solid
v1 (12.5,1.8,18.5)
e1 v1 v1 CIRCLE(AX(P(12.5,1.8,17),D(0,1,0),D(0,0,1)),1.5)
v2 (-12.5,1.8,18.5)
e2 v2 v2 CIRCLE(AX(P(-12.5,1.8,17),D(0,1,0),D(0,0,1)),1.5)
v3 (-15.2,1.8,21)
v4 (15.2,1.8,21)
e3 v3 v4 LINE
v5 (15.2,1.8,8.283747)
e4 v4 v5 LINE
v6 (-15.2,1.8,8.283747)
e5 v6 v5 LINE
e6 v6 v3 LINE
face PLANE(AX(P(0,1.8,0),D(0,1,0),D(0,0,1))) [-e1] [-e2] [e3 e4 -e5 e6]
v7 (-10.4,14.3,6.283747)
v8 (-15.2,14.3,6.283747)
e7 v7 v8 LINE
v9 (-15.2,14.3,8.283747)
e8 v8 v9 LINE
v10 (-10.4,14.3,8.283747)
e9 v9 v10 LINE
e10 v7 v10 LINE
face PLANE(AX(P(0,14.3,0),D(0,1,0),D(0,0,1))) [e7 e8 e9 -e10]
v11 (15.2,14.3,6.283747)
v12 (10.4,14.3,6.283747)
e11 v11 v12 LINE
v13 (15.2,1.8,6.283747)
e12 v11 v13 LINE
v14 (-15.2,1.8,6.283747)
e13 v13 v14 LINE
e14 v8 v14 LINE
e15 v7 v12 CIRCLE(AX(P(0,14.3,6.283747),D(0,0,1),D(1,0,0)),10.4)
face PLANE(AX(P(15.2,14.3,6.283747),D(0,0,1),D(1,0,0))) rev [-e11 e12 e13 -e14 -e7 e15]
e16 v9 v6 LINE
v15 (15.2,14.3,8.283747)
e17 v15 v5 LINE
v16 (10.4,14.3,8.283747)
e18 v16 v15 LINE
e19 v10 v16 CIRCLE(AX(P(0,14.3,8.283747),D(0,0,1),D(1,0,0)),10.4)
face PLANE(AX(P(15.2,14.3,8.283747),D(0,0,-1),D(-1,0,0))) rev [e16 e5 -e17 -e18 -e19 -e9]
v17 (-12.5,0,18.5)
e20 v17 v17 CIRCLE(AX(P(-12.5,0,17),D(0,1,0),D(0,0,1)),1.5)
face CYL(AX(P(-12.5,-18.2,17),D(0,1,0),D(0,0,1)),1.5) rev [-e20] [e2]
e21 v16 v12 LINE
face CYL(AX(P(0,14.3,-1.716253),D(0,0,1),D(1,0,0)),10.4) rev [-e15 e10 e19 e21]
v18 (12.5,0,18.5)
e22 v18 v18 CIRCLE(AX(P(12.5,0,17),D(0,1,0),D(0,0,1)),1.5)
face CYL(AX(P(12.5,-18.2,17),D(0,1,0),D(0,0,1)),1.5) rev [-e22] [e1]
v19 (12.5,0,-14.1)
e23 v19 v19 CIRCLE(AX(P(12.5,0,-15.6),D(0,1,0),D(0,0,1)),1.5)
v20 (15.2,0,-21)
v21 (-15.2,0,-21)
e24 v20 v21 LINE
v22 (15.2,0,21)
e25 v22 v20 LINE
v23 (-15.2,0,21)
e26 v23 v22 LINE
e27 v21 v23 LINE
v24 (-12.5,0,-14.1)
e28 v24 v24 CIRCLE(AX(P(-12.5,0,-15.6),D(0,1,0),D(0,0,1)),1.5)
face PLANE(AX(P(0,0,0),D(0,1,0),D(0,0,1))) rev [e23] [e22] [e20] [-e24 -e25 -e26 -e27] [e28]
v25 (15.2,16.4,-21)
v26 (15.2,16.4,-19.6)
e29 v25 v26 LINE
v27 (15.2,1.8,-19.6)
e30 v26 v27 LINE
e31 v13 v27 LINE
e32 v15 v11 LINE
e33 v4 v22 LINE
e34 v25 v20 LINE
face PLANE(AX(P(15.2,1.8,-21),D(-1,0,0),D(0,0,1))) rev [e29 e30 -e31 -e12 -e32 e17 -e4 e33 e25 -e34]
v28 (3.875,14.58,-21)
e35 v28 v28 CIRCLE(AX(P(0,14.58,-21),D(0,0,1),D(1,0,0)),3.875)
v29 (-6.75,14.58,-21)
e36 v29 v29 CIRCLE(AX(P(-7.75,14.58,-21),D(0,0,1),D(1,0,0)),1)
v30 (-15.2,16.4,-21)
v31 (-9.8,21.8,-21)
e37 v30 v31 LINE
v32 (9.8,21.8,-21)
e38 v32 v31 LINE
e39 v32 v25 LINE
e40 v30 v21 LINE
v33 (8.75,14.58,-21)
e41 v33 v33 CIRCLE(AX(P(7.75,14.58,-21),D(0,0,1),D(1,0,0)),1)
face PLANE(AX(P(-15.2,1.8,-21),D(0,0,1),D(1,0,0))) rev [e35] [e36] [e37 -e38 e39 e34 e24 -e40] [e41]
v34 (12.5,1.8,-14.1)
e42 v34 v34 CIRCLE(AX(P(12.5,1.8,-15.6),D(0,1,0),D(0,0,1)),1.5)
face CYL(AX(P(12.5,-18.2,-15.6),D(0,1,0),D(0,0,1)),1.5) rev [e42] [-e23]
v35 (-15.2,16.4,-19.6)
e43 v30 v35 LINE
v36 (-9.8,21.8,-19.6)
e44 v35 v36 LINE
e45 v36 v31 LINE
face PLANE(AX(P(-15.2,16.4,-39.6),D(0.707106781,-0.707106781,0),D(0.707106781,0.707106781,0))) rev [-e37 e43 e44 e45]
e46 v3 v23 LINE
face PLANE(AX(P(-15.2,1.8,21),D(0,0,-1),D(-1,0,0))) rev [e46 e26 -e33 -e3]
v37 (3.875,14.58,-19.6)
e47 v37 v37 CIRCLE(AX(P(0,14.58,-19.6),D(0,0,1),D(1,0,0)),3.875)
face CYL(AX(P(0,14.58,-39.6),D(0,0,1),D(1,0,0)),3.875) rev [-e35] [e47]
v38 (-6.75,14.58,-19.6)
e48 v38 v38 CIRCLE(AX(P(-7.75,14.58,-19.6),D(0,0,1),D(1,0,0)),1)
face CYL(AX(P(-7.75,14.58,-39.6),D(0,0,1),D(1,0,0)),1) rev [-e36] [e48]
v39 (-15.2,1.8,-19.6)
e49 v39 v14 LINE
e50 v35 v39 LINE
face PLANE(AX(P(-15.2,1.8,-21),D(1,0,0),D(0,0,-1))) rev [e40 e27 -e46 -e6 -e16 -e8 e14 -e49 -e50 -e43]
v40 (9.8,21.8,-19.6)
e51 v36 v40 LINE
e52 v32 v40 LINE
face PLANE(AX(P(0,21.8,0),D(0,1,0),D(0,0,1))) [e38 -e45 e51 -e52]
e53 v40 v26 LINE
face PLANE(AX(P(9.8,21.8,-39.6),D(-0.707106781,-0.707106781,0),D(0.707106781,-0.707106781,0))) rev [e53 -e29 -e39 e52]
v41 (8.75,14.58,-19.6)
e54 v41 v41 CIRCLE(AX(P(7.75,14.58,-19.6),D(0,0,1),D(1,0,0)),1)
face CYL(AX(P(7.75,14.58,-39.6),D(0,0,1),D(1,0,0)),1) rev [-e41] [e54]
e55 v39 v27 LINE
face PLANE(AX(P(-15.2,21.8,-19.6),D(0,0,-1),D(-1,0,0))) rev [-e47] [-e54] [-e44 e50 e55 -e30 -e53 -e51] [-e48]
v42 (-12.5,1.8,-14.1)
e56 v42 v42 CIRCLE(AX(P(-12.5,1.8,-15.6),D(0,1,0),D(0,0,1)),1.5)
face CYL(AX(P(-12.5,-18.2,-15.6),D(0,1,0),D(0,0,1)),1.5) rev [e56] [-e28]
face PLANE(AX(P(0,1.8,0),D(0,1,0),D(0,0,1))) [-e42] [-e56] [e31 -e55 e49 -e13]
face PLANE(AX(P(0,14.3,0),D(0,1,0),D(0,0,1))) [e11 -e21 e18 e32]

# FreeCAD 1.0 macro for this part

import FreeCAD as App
import Part
import Sketcher

V = App.Vector
Q = App.Units.Quantity

doc = App.newDocument("Part")
body = doc.addObject("PartDesign::Body", "Body")

# Sketch on XZ plane
sketch1 = body.newObject("Sketcher::SketchObject", "Sketch")
sketch1.AttachmentSupport = (doc.getObject("XZ_Plane"), [""])
sketch1.MapMode = "FlatFace"
sketch1.addGeometry([
    Part.LineSegment(V(-15, -21, 0), V(-15, 21, 0)),
    Part.LineSegment(V(-15, 21, 0), V(15, 21, 0)),
    Part.LineSegment(V(15, 21, 0), V(15, -21, 0)),
    Part.LineSegment(V(15, -21, 0), V(-15, -21, 0)),
], False)
sketch1.addConstraint([
    Sketcher.Constraint("Coincident", 0, 2, 1, 1),
    Sketcher.Constraint("Coincident", 1, 2, 2, 1),
    Sketcher.Constraint("Coincident", 2, 2, 3, 1),
    Sketcher.Constraint("Coincident", 3, 2, 0, 1),
    Sketcher.Constraint("Vertical", 0),
    Sketcher.Constraint("Horizontal", 1),
    Sketcher.Constraint("Vertical", 2),
    Sketcher.Constraint("Horizontal", 3),
    Sketcher.Constraint("Symmetric", 0, 2, 2, 2, -1, 1),
    Sketcher.Constraint("DistanceY", 0, 1, 0, 2, Q("42 mm")),
    Sketcher.Constraint("DistanceX", 1, 1, 1, 2, Q("30.4 mm")),
])
pad1 = body.newObject("PartDesign::Pad", "Pad")
pad1.Profile = sketch1
pad1.Length = 1.8
pad1.Reversed = True

# Sketch on XZ plane
sketch2 = body.newObject("Sketcher::SketchObject", "Sketch001")
sketch2.AttachmentSupport = (doc.getObject("XZ_Plane"), [""])
sketch2.MapMode = "FlatFace"
sketch2.AttachmentOffset = App.Placement(V(0, 0, -1.8), App.Rotation())
sketch2.addGeometry([
    Part.LineSegment(V(-15.2, -21, 0), V(-15.2, -19.6, 0)),
    Part.LineSegment(V(-15.2, -19.6, 0), V(15.2, -19.6, 0)),
    Part.LineSegment(V(15.2, -19.6, 0), V(15.2, -21, 0)),
    Part.LineSegment(V(15.2, -21, 0), V(-15.2, -21, 0)),
], False)
sketch2.addConstraint([
    Sketcher.Constraint("Coincident", 0, 2, 1, 1),
    Sketcher.Constraint("Coincident", 1, 2, 2, 1),
    Sketcher.Constraint("Coincident", 2, 2, 3, 1),
    Sketcher.Constraint("Coincident", 3, 2, 0, 1),
    Sketcher.Constraint("Vertical", 0),
    Sketcher.Constraint("Horizontal", 1),
    Sketcher.Constraint("Vertical", 2),
    Sketcher.Constraint("Horizontal", 3),
    Sketcher.Constraint("DistanceX", 1, 1, 1, 2, Q("30.4 mm")),
    Sketcher.Constraint("DistanceY", 0, 1, 0, 2, Q("1.4 mm")),
    Sketcher.Constraint("DistanceY", 2, 2, -1, 1, Q("21 mm")),
    Sketcher.Constraint("DistanceX", 0, 2, -1, 1, Q("15.2 mm")),
])
pad2 = body.newObject("PartDesign::Pad", "Pad001")
pad2.Profile = sketch2
pad2.Length = 20
pad2.Reversed = True

# Sketch on XZ plane
sketch3 = body.newObject("Sketcher::SketchObject", "Sketch002")
sketch3.AttachmentSupport = (doc.getObject("XZ_Plane"), [""])
sketch3.MapMode = "FlatFace"
sketch3.AttachmentOffset = App.Placement(V(0, 0, -1.8), App.Rotation())
sketch3.addGeometry([
    Part.Circle(V(12.5, -15.6, 0), V(0, 0, 1), 1.5),
    Part.Circle(V(-12.5, -15.6, 0), V(0, 0, 1), 1.5),
    Part.Circle(V(-12.5, 17, 0), V(0, 0, 1), 1.5),
    Part.Circle(V(12.5, 17, 0), V(0, 0, 1), 1.5),
], False)
sketch3.addConstraint([
    Sketcher.Constraint("Equal", 0, 1),
    Sketcher.Constraint("Equal", 1, 2),
    Sketcher.Constraint("Equal", 2, 3),
    Sketcher.Constraint("Symmetric", 0, 3, 1, 3, -2),
    Sketcher.Constraint("Symmetric", 2, 3, 3, 3, -2),
    Sketcher.Constraint("Vertical", 1, 3, 2, 3),
    Sketcher.Constraint("Diameter", 0, Q("3 mm")),
    Sketcher.Constraint("DistanceY", -1, 1, 2, 3, Q("17 mm")),
    Sketcher.Constraint("DistanceX", 1, 3, 0, 3, Q("25 mm")),
    Sketcher.Constraint("DistanceY", 0, 3, -1, 1, Q("15.6 mm")),
])
pocket1 = body.newObject("PartDesign::Pocket", "Pocket")
pocket1.Profile = sketch3
pocket1.Length = 20
pocket1.Reversed = True

# Sketch on XY plane
sketch4 = body.newObject("Sketcher::SketchObject", "Sketch003")
sketch4.AttachmentSupport = (doc.getObject("XY_Plane"), [""])
sketch4.MapMode = "FlatFace"
sketch4.AttachmentOffset = App.Placement(V(0, 0, -19.6), App.Rotation())
sketch4.addGeometry([
    Part.Circle(V(0, 14.6, 0), V(0, 0, 1), 3.9),  # 0
    Part.Circle(V(-7.8, 14.6, 0), V(0, 0, 1), 1),  # 1
    Part.Circle(V(7.8, 14.6, 0), V(0, 0, 1), 1),  # 2
    Part.LineSegment(V(-15.2, 16.4, 0), V(-9.8, 21.8, 0)),  # 3
    Part.LineSegment(V(-9.8, 21.8, 0), V(-15.2, 21.8, 0)),  # 4
    Part.LineSegment(V(-15.2, 21.8, 0), V(-15.2, 16.4, 0)),  # 5
    Part.LineSegment(V(15.2, 16.4, 0), V(15.2, 21.8, 0)),  # 6
    Part.LineSegment(V(15.2, 21.8, 0), V(9.8, 21.8, 0)),  # 7
    Part.LineSegment(V(9.8, 21.8, 0), V(15.2, 16.4, 0)),  # 8
], False)
sketch4.addConstraint([
    Sketcher.Constraint("Coincident", 3, 2, 4, 1),
    Sketcher.Constraint("Coincident", 4, 2, 5, 1),
    Sketcher.Constraint("Coincident", 5, 2, 3, 1),
    Sketcher.Constraint("Coincident", 6, 2, 7, 1),
    Sketcher.Constraint("Coincident", 7, 2, 8, 1),
    Sketcher.Constraint("Coincident", 8, 2, 6, 1),
    Sketcher.Constraint("Horizontal", 4),
    Sketcher.Constraint("Vertical", 5),
    Sketcher.Constraint("Vertical", 6),
    Sketcher.Constraint("Horizontal", 7),
    Sketcher.Constraint("Equal", 1, 2),
    Sketcher.Constraint("Symmetric", 1, 3, 2, 3, -2),
    Sketcher.Constraint("Symmetric", 4, 2, 6, 2, -2),
    Sketcher.Constraint("PointOnObject", 0, 3, -2),
    Sketcher.Constraint("Perpendicular", 3, 8),
    Sketcher.Constraint("Horizontal", 0, 3, 1, 3),
    Sketcher.Constraint("Horizontal", 5, 2, 8, 2),
    Sketcher.Constraint("Equal", 4, 7),
    Sketcher.Constraint("Diameter", 1, Q("2 mm")),
    Sketcher.Constraint("Diameter", 0, Q("7.75 mm")),
    Sketcher.Constraint("DistanceX", 4, 2, 4, 1, Q("5.4 mm")),
    Sketcher.Constraint("DistanceX", 3, 2, 6, 2, Q("25 mm")),
    Sketcher.Constraint("DistanceY", -1, 1, 3, 2, Q("21.8 mm")),
    Sketcher.Constraint("DistanceX", 1, 3, 2, 3, Q("15.5 mm")),
    Sketcher.Constraint("DistanceY", -1, 1, 0, 3, Q("14.58 mm")),
])
pocket2 = body.newObject("PartDesign::Pocket", "Pocket001")
pocket2.Profile = sketch4
pocket2.Length = 20

# Sketch on XZ plane
sketch5 = body.newObject("Sketcher::SketchObject", "Sketch004")
sketch5.AttachmentSupport = (doc.getObject("XZ_Plane"), [""])
sketch5.MapMode = "FlatFace"
sketch5.AttachmentOffset = App.Placement(V(0, 0, -1.8), App.Rotation())
sketch5.addGeometry([
    Part.LineSegment(V(-15.2, 6.3, 0), V(-15.2, 8.3, 0)),
    Part.LineSegment(V(-15.2, 8.3, 0), V(15.2, 8.3, 0)),
    Part.LineSegment(V(15.2, 8.3, 0), V(15.2, 6.3, 0)),
    Part.LineSegment(V(15.2, 6.3, 0), V(-15.2, 6.3, 0)),
], False)
sketch5.addConstraint([
    Sketcher.Constraint("Coincident", 0, 2, 1, 1),
    Sketcher.Constraint("Coincident", 1, 2, 2, 1),
    Sketcher.Constraint("Coincident", 2, 2, 3, 1),
    Sketcher.Constraint("Coincident", 3, 2, 0, 1),
    Sketcher.Constraint("Vertical", 0),
    Sketcher.Constraint("Horizontal", 1),
    Sketcher.Constraint("Vertical", 2),
    Sketcher.Constraint("Horizontal", 3),
    Sketcher.Constraint("DistanceY", 0, 1, 0, 2, Q("2 mm")),
    Sketcher.Constraint("DistanceX", 1, 1, 1, 2, Q("30.4 mm")),
    Sketcher.Constraint("DistanceX", 0, 2, -1, 1, Q("15.2 mm")),
    Sketcher.Constraint("DistanceY", -1, 1, 0, 2, Q("8.283747 mm")),
])
pad3 = body.newObject("PartDesign::Pad", "Pad002")
pad3.Profile = sketch5
pad3.Length = 12.5
pad3.Reversed = True

# Sketch on XY plane
sketch6 = body.newObject("Sketcher::SketchObject", "Sketch005")
sketch6.AttachmentSupport = (doc.getObject("XY_Plane"), [""])
sketch6.MapMode = "FlatFace"
sketch6.AttachmentOffset = App.Placement(V(0, 0, 8.283747), App.Rotation())
sketch6.addGeometry(Part.Circle(V(0, 14, 0), V(0, 0, 1), 10), False)
sketch6.addConstraint([
    Sketcher.Constraint("PointOnObject", 0, 3, -2),
    Sketcher.Constraint("Diameter", 0, Q("20.8 mm")),
    Sketcher.Constraint("DistanceY", -1, 1, 0, 3, Q("14.3 mm")),
])
pocket3 = body.newObject("PartDesign::Pocket", "Pocket002")
pocket3.Profile = sketch6
pocket3.Length = 10

doc.recompute()
